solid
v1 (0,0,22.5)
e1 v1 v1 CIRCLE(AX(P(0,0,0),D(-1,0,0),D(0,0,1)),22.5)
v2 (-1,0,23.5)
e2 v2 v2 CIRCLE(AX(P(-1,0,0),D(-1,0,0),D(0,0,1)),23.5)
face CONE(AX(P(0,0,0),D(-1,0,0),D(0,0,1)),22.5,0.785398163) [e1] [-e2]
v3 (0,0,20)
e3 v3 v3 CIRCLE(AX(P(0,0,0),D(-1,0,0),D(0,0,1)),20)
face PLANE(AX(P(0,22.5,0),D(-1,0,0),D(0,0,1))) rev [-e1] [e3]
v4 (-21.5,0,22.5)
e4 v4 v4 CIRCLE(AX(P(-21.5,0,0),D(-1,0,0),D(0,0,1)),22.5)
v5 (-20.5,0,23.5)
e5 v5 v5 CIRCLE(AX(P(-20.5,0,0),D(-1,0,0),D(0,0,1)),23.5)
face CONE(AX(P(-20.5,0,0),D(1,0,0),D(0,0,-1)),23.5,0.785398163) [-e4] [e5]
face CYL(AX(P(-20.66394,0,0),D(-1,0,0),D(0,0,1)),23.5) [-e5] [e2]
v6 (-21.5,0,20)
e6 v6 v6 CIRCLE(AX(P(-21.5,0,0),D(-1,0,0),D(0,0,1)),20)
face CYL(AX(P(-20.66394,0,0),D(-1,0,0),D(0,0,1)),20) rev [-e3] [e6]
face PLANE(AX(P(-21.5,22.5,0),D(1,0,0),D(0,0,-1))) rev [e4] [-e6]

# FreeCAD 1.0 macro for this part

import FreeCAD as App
import Part
import Sketcher
from FreeCAD import Vector
Q = App.Units.Quantity

doc = App.newDocument("Part")
params = doc.addObject("Spreadsheet::Sheet", "Params")
for row, (alias, value) in enumerate([
    ("sketch1_width", "19.5 mm"),
    ("sketch1_width2", "21.5 mm"),
    ("sketch1_height", "2.5 mm"),
    ("revolution_angle", "360 deg"),
], start=1):
    params.set(f"A{row}", alias)
    params.set(f"B{row}", "=" + value)
    params.setAlias(f"B{row}", alias)

body = doc.addObject("PartDesign::Body", "Body")

sketch1 = body.newObject("Sketcher::SketchObject", "Sketch")
sketch1.AttachmentSupport = (doc.getObject("XY_Plane"), [""])
sketch1.MapMode = "FlatFace"
sketch1.addGeometry(Part.LineSegment(Vector(0, 22.5, 0), Vector(-1, 23.5, 0)), False)
sketch1.addGeometry(Part.LineSegment(Vector(-1, 23.5, 0), Vector(-20.5, 23.5, 0)), False)
sketch1.addGeometry(Part.LineSegment(Vector(-20.5, 23.5, 0), Vector(-21.5, 22.5, 0)), False)
sketch1.addGeometry(Part.LineSegment(Vector(-21.5, 22.5, 0), Vector(-21.5, 20, 0)), False)
sketch1.addGeometry(Part.LineSegment(Vector(-21.5, 20, 0), Vector(0, 20, 0)), False)
sketch1.addGeometry(Part.LineSegment(Vector(0, 20, 0), Vector(0, 22.5, 0)), False)
sketch1.addConstraint(Sketcher.Constraint("Coincident", 0, 2, 1, 1))
sketch1.addConstraint(Sketcher.Constraint("Coincident", 1, 2, 2, 1))
sketch1.addConstraint(Sketcher.Constraint("Coincident", 2, 2, 3, 1))
sketch1.addConstraint(Sketcher.Constraint("Coincident", 3, 2, 4, 1))
sketch1.addConstraint(Sketcher.Constraint("Coincident", 4, 2, 5, 1))
sketch1.addConstraint(Sketcher.Constraint("Coincident", 5, 2, 0, 1))
sketch1.addConstraint(Sketcher.Constraint("Horizontal", 1))
sketch1.addConstraint(Sketcher.Constraint("Vertical", 3))
sketch1.addConstraint(Sketcher.Constraint("Horizontal", 4))
sketch1.addConstraint(Sketcher.Constraint("Vertical", 5))
sketch1.addConstraint(Sketcher.Constraint("PointOnObject", 4, 2, -2))
sketch1.addConstraint(Sketcher.Constraint("Perpendicular", 0, 2))
sketch1.addConstraint(Sketcher.Constraint("Horizontal", 2, 2, 5, 2))
sketch1.addConstraint(Sketcher.Constraint("Equal", 0, 2))
sketch1.addConstraint(Sketcher.Constraint("DistanceX", 1, 2, 1, 1, Q("19.5 mm")))
sketch1.addConstraint(Sketcher.Constraint("DistanceX", 4, 1, 4, 2, Q("21.5 mm")))
sketch1.addConstraint(Sketcher.Constraint("DistanceY", 3, 2, 3, 1, Q("2.5 mm")))
sketch1.addConstraint(Sketcher.Constraint("DistanceY", -1, 1, 3, 2, Q("20 mm")))
sketch1.setExpression("Constraints[14]", "Params.sketch1_width")
sketch1.setExpression("Constraints[15]", "Params.sketch1_width2")
sketch1.setExpression("Constraints[16]", "Params.sketch1_height")
revolution = body.newObject("PartDesign::Revolution", "Revolution")
revolution.Profile = sketch1
revolution.ReferenceAxis = (sketch1, ["H_Axis"])
revolution.setExpression("Angle", "Params.revolution_angle")

doc.recompute()
